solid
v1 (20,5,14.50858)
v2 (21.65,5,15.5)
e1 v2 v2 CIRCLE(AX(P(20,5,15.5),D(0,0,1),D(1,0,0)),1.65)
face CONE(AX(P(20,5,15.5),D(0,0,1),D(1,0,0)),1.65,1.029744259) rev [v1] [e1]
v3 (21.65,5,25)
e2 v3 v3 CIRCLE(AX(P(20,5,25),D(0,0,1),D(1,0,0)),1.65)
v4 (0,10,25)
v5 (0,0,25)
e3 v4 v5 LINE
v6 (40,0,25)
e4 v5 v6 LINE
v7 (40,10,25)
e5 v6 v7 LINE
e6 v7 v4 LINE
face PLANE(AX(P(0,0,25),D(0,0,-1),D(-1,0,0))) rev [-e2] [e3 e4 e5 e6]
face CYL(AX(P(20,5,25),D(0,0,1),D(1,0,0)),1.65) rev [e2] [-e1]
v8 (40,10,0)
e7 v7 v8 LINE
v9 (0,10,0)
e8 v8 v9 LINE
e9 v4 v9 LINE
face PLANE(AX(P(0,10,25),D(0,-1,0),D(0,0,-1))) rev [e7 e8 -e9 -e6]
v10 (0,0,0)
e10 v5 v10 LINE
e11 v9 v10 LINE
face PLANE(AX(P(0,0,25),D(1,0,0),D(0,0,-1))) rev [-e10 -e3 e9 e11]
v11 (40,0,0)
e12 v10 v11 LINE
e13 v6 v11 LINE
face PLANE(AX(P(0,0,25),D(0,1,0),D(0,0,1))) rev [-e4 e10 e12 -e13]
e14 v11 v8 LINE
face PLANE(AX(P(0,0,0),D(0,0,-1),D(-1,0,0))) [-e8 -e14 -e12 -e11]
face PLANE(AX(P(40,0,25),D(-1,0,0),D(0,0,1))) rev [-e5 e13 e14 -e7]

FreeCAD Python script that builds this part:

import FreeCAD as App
import Part
import Sketcher

V = App.Vector
Q = App.Units.Quantity

doc = App.newDocument("Part")
body = doc.addObject("PartDesign::Body", "Body")

# Sketch on XY plane
sketch1 = body.newObject("Sketcher::SketchObject", "Sketch")
sketch1.AttachmentSupport = (doc.getObject("XY_Plane"), [""])
sketch1.MapMode = "FlatFace"
sketch1.addGeometry([
    Part.LineSegment(V(0, 10, 0), V(0, 0, 0)),
    Part.LineSegment(V(0, 0, 0), V(40, 0, 0)),
    Part.LineSegment(V(40, 0, 0), V(40, 10, 0)),
    Part.LineSegment(V(40, 10, 0), V(0, 10, 0)),
], False)
sketch1.addConstraint([
    Sketcher.Constraint("Coincident", 0, 2, 1, 1),
    Sketcher.Constraint("Coincident", 1, 2, 2, 1),
    Sketcher.Constraint("Coincident", 2, 2, 3, 1),
    Sketcher.Constraint("Coincident", 3, 2, 0, 1),
    Sketcher.Constraint("Vertical", 0),
    Sketcher.Constraint("Horizontal", 1),
    Sketcher.Constraint("Vertical", 2),
    Sketcher.Constraint("Horizontal", 3),
    Sketcher.Constraint("Coincident", 0, 2, -1, 1),
    Sketcher.Constraint("DistanceX", 1, 1, 1, 2, Q("40 mm")),
    Sketcher.Constraint("DistanceY", 0, 2, 0, 1, Q("10 mm")),
])
pad1 = body.newObject("PartDesign::Pad", "Pad")
pad1.Profile = sketch1
pad1.Length = 25

# Sketch on XY plane
sketch2 = body.newObject("Sketcher::SketchObject", "Sketch001")
sketch2.AttachmentSupport = (doc.getObject("XY_Plane"), [""])
sketch2.MapMode = "FlatFace"
sketch2.AttachmentOffset = App.Placement(V(0, 0, 25), App.Rotation())
sketch2.addGeometry(Part.Circle(V(20, 5, 0), V(0, 0, 1), 1.6), False)
sketch2.addConstraint([
    Sketcher.Constraint("Diameter", 0, Q("3.3 mm")),
    Sketcher.Constraint("DistanceX", -1, 1, 0, 3, Q("20 mm")),
    Sketcher.Constraint("DistanceY", -1, 1, 0, 3, Q("5 mm")),
])
doc.recompute()
hole = body.newObject("PartDesign::Hole", "Hole")
hole.Profile = sketch2
hole.ThreadType = "None"
hole.Diameter = 3.3
hole.DepthType = "Dimension"
hole.Depth = 9.5
hole.DrillPoint = "Angled"
hole.DrillPointAngle = 118

doc.recompute()
